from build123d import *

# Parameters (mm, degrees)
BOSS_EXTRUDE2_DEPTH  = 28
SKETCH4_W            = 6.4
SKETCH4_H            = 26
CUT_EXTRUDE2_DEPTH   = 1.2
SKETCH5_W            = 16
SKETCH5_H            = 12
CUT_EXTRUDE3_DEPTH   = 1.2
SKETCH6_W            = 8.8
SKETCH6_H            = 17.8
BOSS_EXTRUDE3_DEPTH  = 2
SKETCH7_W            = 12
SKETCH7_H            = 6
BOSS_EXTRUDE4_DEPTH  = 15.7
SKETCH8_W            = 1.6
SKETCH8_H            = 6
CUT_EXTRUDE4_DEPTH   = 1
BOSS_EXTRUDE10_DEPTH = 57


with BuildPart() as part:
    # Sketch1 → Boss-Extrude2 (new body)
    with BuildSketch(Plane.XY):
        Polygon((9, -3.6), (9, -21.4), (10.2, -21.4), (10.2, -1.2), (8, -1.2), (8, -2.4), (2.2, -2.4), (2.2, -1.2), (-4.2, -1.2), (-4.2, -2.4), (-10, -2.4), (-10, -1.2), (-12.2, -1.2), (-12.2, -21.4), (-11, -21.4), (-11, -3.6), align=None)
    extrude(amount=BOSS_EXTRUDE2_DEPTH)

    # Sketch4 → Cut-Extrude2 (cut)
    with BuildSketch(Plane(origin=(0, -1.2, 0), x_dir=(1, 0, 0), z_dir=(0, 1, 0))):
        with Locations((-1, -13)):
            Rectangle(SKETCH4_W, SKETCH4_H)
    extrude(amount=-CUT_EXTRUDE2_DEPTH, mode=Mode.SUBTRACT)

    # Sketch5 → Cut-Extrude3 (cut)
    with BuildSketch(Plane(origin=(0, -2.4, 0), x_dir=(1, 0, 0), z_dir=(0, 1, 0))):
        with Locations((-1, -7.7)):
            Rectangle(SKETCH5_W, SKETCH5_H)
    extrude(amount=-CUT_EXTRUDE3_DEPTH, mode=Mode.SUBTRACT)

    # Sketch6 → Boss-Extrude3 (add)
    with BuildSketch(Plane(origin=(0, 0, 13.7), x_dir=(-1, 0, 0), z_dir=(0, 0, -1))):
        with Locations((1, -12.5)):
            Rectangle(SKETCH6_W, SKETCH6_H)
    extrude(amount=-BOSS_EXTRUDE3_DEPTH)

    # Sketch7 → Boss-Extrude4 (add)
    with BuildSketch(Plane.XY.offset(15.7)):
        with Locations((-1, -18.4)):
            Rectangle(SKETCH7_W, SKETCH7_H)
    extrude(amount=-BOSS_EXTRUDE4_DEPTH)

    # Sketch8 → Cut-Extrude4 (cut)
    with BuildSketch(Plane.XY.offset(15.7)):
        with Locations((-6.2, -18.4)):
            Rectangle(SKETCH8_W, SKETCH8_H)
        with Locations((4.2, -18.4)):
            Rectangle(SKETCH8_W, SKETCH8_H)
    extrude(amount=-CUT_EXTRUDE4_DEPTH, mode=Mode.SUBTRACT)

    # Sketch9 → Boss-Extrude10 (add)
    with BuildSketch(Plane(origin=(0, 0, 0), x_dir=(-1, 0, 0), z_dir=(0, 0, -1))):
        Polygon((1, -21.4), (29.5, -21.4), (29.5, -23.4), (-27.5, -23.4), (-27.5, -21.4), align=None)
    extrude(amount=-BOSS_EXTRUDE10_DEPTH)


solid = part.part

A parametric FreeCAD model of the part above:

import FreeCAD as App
import Part
import Sketcher
Q = App.Units.Quantity


def add_polygon(sketch, points):
    """Adds a closed chain of lines whose ends are joined by coincident constraints."""
    first, n = sketch.GeometryCount, len(points)
    for a, b in zip(points, points[1:] + points[:1]):
        sketch.addGeometry(Part.LineSegment(App.Vector(*a, 0), App.Vector(*b, 0)), False)
    for i in range(n):
        sketch.addConstraint(Sketcher.Constraint("Coincident", first + i, 2, first + (i + 1) % n, 1))

doc = App.newDocument("Part")
body = doc.addObject("PartDesign::Body", "Body")

# Sketch on XY plane
sketch1 = body.newObject("Sketcher::SketchObject", "Sketch")
sketch1.AttachmentSupport = (doc.getObject("XY_Plane"), [""])
sketch1.MapMode = "FlatFace"
add_polygon(sketch1, [(9, -3.6), (9, -21.4), (10.2, -21.4), (10.2, -1.2), (8, -1.2), (8, -2.4), (2.2, -2.4), (2.2, -1.2), (-4.2, -1.2), (-4.2, -2.4), (-10, -2.4), (-10, -1.2), (-12.2, -1.2), (-12.2, -21.4), (-11, -21.4), (-11, -3.6)])  # lines 0-15
sketch1.addConstraint(Sketcher.Constraint("Vertical", 0))
sketch1.addConstraint(Sketcher.Constraint("Horizontal", 1))
sketch1.addConstraint(Sketcher.Constraint("Vertical", 2))
sketch1.addConstraint(Sketcher.Constraint("Horizontal", 3))
sketch1.addConstraint(Sketcher.Constraint("Vertical", 4))
sketch1.addConstraint(Sketcher.Constraint("Horizontal", 5))
sketch1.addConstraint(Sketcher.Constraint("Vertical", 6))
sketch1.addConstraint(Sketcher.Constraint("Horizontal", 7))
sketch1.addConstraint(Sketcher.Constraint("Vertical", 8))
sketch1.addConstraint(Sketcher.Constraint("Horizontal", 9))
sketch1.addConstraint(Sketcher.Constraint("Vertical", 10))
sketch1.addConstraint(Sketcher.Constraint("Horizontal", 11))
sketch1.addConstraint(Sketcher.Constraint("Vertical", 12))
sketch1.addConstraint(Sketcher.Constraint("Horizontal", 13))
sketch1.addConstraint(Sketcher.Constraint("Vertical", 14))
sketch1.addConstraint(Sketcher.Constraint("Horizontal", 15))
sketch1.addConstraint(Sketcher.Constraint("Horizontal", 3, 2, 6, 2))
sketch1.addConstraint(Sketcher.Constraint("Horizontal", 5, 2, 8, 2))
sketch1.addConstraint(Sketcher.Constraint("Horizontal", 7, 2, 10, 2))
sketch1.addConstraint(Sketcher.Constraint("Horizontal", 1, 2, 12, 2))
sketch1.addConstraint(Sketcher.Constraint("Equal", 5, 9))
sketch1.addConstraint(Sketcher.Constraint("Equal", 3, 11))
sketch1.addConstraint(Sketcher.Constraint("Equal", 1, 13))
sketch1.addConstraint(Sketcher.Constraint("Equal", 13, 4))
sketch1.addConstraint(Sketcher.Constraint("DistanceX", 15, 1, 15, 2, Q("20 mm")))
sketch1.addConstraint(Sketcher.Constraint("DistanceX", 1, 1, 1, 2, Q("1.2 mm")))
sketch1.addConstraint(Sketcher.Constraint("DistanceX", 3, 2, 3, 1, Q("2.2 mm")))
sketch1.addConstraint(Sketcher.Constraint("DistanceX", 5, 2, 5, 1, Q("5.8 mm")))
sketch1.addConstraint(Sketcher.Constraint("DistanceY", 0, 2, 0, 1, Q("17.8 mm")))
sketch1.addConstraint(Sketcher.Constraint("DistanceY", 2, 1, 2, 2, Q("20.2 mm")))
sketch1.addConstraint(Sketcher.Constraint("DistanceX", -1, 1, 0, 2, Q("9 mm")))
sketch1.addConstraint(Sketcher.Constraint("DistanceY", 0, 2, -1, 1, Q("21.4 mm")))
pad1 = body.newObject("PartDesign::Pad", "Pad")
pad1.Profile = sketch1
pad1.Length = 28

# Sketch on XZ plane
sketch2 = body.newObject("Sketcher::SketchObject", "Sketch001")
sketch2.AttachmentSupport = (doc.getObject("XZ_Plane"), [""])
sketch2.MapMode = "FlatFace"
sketch2.AttachmentOffset = App.Placement(App.Vector(0, 0, 1.2), App.Rotation())
add_polygon(sketch2, [(-4, 0), (-4, 26), (2, 26), (2, 0)])  # lines 0-3
sketch2.addConstraint(Sketcher.Constraint("Vertical", 0))
sketch2.addConstraint(Sketcher.Constraint("Horizontal", 1))
sketch2.addConstraint(Sketcher.Constraint("Vertical", 2))
sketch2.addConstraint(Sketcher.Constraint("Horizontal", 3))
sketch2.addConstraint(Sketcher.Constraint("PointOnObject", 2, 2, -1))
sketch2.addConstraint(Sketcher.Constraint("DistanceY", 0, 1, 0, 2, Q("26 mm")))
sketch2.addConstraint(Sketcher.Constraint("DistanceX", 1, 1, 1, 2, Q("6.4 mm")))
sketch2.addConstraint(Sketcher.Constraint("DistanceX", 0, 2, -1, 1, Q("4.2 mm")))
pocket1 = body.newObject("PartDesign::Pocket", "Pocket")
pocket1.Profile = sketch2
pocket1.Length = 1.2
pocket1.Reversed = True

# Sketch on XZ plane
sketch3 = body.newObject("Sketcher::SketchObject", "Sketch002")
sketch3.AttachmentSupport = (doc.getObject("XZ_Plane"), [""])
sketch3.MapMode = "FlatFace"
sketch3.AttachmentOffset = App.Placement(App.Vector(0, 0, 2.4), App.Rotation())
add_polygon(sketch3, [(-9, 2), (-9, 14), (7, 14), (7, 2)])  # lines 0-3
sketch3.addConstraint(Sketcher.Constraint("Vertical", 0))
sketch3.addConstraint(Sketcher.Constraint("Horizontal", 1))
sketch3.addConstraint(Sketcher.Constraint("Vertical", 2))
sketch3.addConstraint(Sketcher.Constraint("Horizontal", 3))
sketch3.addConstraint(Sketcher.Constraint("DistanceX", 1, 1, 1, 2, Q("16 mm")))
sketch3.addConstraint(Sketcher.Constraint("DistanceY", 0, 1, 0, 2, Q("12 mm")))
sketch3.addConstraint(Sketcher.Constraint("DistanceX", 0, 2, -1, 1, Q("9 mm")))
sketch3.addConstraint(Sketcher.Constraint("DistanceY", -1, 1, 0, 2, Q("13.7 mm")))
pocket2 = body.newObject("PartDesign::Pocket", "Pocket001")
pocket2.Profile = sketch3
pocket2.Length = 1.2
pocket2.Reversed = True

# Sketch on XY plane
sketch4 = body.newObject("Sketcher::SketchObject", "Sketch003")
sketch4.AttachmentSupport = (doc.getObject("XY_Plane"), [""])
sketch4.MapMode = "FlatFace"
sketch4.AttachmentOffset = App.Placement(App.Vector(0, 0, 13.7), App.Rotation())
add_polygon(sketch4, [(3, -4), (3, -21), (-5, -21), (-5, -4)])  # lines 0-3
sketch4.addConstraint(Sketcher.Constraint("Vertical", 0))
sketch4.addConstraint(Sketcher.Constraint("Horizontal", 1))
sketch4.addConstraint(Sketcher.Constraint("Vertical", 2))
sketch4.addConstraint(Sketcher.Constraint("Horizontal", 3))
sketch4.addConstraint(Sketcher.Constraint("DistanceX", 1, 2, 1, 1, Q("8.8 mm")))
sketch4.addConstraint(Sketcher.Constraint("DistanceY", 0, 2, 0, 1, Q("17.8 mm")))
sketch4.addConstraint(Sketcher.Constraint("DistanceX", -1, 1, 0, 2, Q("3.4 mm")))
sketch4.addConstraint(Sketcher.Constraint("DistanceY", 0, 2, -1, 1, Q("21.4 mm")))
pad2 = body.newObject("PartDesign::Pad", "Pad001")
pad2.Profile = sketch4
pad2.Length = 2

# Sketch on XY plane
sketch5 = body.newObject("Sketcher::SketchObject", "Sketch004")
sketch5.AttachmentSupport = (doc.getObject("XY_Plane"), [""])
sketch5.MapMode = "FlatFace"
sketch5.AttachmentOffset = App.Placement(App.Vector(0, 0, 15.7), App.Rotation())
add_polygon(sketch5, [(-7, -15), (-7, -21), (5, -21), (5, -15)])  # lines 0-3
sketch5.addConstraint(Sketcher.Constraint("Vertical", 0))
sketch5.addConstraint(Sketcher.Constraint("Horizontal", 1))
sketch5.addConstraint(Sketcher.Constraint("Vertical", 2))
sketch5.addConstraint(Sketcher.Constraint("Horizontal", 3))
sketch5.addConstraint(Sketcher.Constraint("DistanceX", 1, 1, 1, 2, Q("12 mm")))
sketch5.addConstraint(Sketcher.Constraint("DistanceY", 0, 2, 0, 1, Q("6 mm")))
sketch5.addConstraint(Sketcher.Constraint("DistanceX", 0, 2, -1, 1, Q("7 mm")))
sketch5.addConstraint(Sketcher.Constraint("DistanceY", 0, 2, -1, 1, Q("21.4 mm")))
pad3 = body.newObject("PartDesign::Pad", "Pad002")
pad3.Profile = sketch5
pad3.Length = 15.7
pad3.Reversed = True

# Sketch on XY plane
sketch6 = body.newObject("Sketcher::SketchObject", "Sketch005")
sketch6.AttachmentSupport = (doc.getObject("XY_Plane"), [""])
sketch6.MapMode = "FlatFace"
sketch6.AttachmentOffset = App.Placement(App.Vector(0, 0, 15.7), App.Rotation())
add_polygon(sketch6, [(-7, -15.4), (-7, -21.4), (-5.4, -21.4), (-5.4, -15.4)])  # lines 0-3
add_polygon(sketch6, [(3.4, -15.4), (3.4, -21.4), (5, -21.4), (5, -15.4)])  # lines 4-7
sketch6.addConstraint(Sketcher.Constraint("Vertical", 0))
sketch6.addConstraint(Sketcher.Constraint("Horizontal", 1))
sketch6.addConstraint(Sketcher.Constraint("Vertical", 2))
sketch6.addConstraint(Sketcher.Constraint("Horizontal", 3))
sketch6.addConstraint(Sketcher.Constraint("Vertical", 4))
sketch6.addConstraint(Sketcher.Constraint("Horizontal", 5))
sketch6.addConstraint(Sketcher.Constraint("Vertical", 6))
sketch6.addConstraint(Sketcher.Constraint("Horizontal", 7))
sketch6.addConstraint(Sketcher.Constraint("Horizontal", 1, 2, 4, 2))
sketch6.addConstraint(Sketcher.Constraint("Horizontal", 3, 2, 6, 2))
sketch6.addConstraint(Sketcher.Constraint("Equal", 3, 5))
sketch6.addConstraint(Sketcher.Constraint("DistanceY", 0, 2, 0, 1, Q("6 mm")))
sketch6.addConstraint(Sketcher.Constraint("DistanceX", 1, 1, 1, 2, Q("1.6 mm")))
sketch6.addConstraint(Sketcher.Constraint("DistanceX", 0, 2, -1, 1, Q("7 mm")))
sketch6.addConstraint(Sketcher.Constraint("DistanceX", -1, 1, 5, 2, Q("5 mm")))
sketch6.addConstraint(Sketcher.Constraint("DistanceY", 0, 2, -1, 1, Q("21.4 mm")))
pocket3 = body.newObject("PartDesign::Pocket", "Pocket002")
pocket3.Profile = sketch6
pocket3.Length = 1

# Sketch on XY plane
sketch7 = body.newObject("Sketcher::SketchObject", "Sketch006")
sketch7.AttachmentSupport = (doc.getObject("XY_Plane"), [""])
sketch7.MapMode = "FlatFace"
add_polygon(sketch7, [(-29.5, -21.4), (27.5, -21.4), (27.5, -23.4), (-29.5, -23.4)])  # lines 0-3
sketch7.addConstraint(Sketcher.Constraint("Horizontal", 0))
sketch7.addConstraint(Sketcher.Constraint("Vertical", 1))
sketch7.addConstraint(Sketcher.Constraint("Horizontal", 2))
sketch7.addConstraint(Sketcher.Constraint("Vertical", 3))
sketch7.addConstraint(Sketcher.Constraint("DistanceX", 0, 1, 0, 2, Q("57 mm")))
sketch7.addConstraint(Sketcher.Constraint("DistanceY", 1, 2, 1, 1, Q("2 mm")))
sketch7.addConstraint(Sketcher.Constraint("DistanceX", -1, 1, 0, 2, Q("27.5 mm")))
sketch7.addConstraint(Sketcher.Constraint("DistanceY", 0, 2, -1, 1, Q("21.4 mm")))
pad4 = body.newObject("PartDesign::Pad", "Pad003")
pad4.Profile = sketch7
pad4.Length = 57

doc.recompute()
